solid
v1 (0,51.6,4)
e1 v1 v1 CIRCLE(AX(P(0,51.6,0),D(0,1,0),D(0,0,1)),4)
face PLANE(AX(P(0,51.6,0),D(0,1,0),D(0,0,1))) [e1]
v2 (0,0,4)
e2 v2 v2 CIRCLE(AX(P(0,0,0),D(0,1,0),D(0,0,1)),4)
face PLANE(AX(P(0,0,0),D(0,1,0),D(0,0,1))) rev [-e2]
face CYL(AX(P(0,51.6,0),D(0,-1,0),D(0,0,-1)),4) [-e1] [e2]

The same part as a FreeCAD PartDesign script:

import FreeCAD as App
import Part
import Sketcher

V = App.Vector
Q = App.Units.Quantity

doc = App.newDocument("Part")
body = doc.addObject("PartDesign::Body", "Body")

# Sketch on XZ plane
sketch1 = body.newObject("Sketcher::SketchObject", "Sketch")
sketch1.AttachmentSupport = (doc.getObject("XZ_Plane"), [""])
sketch1.MapMode = "FlatFace"
sketch1.addGeometry(Part.Circle(V(0, 0, 0), V(0, 0, 1), 4), False)
sketch1.addConstraint([
    Sketcher.Constraint("Coincident", 0, 3, -1, 1),
    Sketcher.Constraint("Diameter", 0, Q("8 mm")),
])
pad1 = body.newObject("PartDesign::Pad", "Pad")
pad1.Profile = sketch1
pad1.Length = 51.6
pad1.Reversed = True

doc.recompute()
